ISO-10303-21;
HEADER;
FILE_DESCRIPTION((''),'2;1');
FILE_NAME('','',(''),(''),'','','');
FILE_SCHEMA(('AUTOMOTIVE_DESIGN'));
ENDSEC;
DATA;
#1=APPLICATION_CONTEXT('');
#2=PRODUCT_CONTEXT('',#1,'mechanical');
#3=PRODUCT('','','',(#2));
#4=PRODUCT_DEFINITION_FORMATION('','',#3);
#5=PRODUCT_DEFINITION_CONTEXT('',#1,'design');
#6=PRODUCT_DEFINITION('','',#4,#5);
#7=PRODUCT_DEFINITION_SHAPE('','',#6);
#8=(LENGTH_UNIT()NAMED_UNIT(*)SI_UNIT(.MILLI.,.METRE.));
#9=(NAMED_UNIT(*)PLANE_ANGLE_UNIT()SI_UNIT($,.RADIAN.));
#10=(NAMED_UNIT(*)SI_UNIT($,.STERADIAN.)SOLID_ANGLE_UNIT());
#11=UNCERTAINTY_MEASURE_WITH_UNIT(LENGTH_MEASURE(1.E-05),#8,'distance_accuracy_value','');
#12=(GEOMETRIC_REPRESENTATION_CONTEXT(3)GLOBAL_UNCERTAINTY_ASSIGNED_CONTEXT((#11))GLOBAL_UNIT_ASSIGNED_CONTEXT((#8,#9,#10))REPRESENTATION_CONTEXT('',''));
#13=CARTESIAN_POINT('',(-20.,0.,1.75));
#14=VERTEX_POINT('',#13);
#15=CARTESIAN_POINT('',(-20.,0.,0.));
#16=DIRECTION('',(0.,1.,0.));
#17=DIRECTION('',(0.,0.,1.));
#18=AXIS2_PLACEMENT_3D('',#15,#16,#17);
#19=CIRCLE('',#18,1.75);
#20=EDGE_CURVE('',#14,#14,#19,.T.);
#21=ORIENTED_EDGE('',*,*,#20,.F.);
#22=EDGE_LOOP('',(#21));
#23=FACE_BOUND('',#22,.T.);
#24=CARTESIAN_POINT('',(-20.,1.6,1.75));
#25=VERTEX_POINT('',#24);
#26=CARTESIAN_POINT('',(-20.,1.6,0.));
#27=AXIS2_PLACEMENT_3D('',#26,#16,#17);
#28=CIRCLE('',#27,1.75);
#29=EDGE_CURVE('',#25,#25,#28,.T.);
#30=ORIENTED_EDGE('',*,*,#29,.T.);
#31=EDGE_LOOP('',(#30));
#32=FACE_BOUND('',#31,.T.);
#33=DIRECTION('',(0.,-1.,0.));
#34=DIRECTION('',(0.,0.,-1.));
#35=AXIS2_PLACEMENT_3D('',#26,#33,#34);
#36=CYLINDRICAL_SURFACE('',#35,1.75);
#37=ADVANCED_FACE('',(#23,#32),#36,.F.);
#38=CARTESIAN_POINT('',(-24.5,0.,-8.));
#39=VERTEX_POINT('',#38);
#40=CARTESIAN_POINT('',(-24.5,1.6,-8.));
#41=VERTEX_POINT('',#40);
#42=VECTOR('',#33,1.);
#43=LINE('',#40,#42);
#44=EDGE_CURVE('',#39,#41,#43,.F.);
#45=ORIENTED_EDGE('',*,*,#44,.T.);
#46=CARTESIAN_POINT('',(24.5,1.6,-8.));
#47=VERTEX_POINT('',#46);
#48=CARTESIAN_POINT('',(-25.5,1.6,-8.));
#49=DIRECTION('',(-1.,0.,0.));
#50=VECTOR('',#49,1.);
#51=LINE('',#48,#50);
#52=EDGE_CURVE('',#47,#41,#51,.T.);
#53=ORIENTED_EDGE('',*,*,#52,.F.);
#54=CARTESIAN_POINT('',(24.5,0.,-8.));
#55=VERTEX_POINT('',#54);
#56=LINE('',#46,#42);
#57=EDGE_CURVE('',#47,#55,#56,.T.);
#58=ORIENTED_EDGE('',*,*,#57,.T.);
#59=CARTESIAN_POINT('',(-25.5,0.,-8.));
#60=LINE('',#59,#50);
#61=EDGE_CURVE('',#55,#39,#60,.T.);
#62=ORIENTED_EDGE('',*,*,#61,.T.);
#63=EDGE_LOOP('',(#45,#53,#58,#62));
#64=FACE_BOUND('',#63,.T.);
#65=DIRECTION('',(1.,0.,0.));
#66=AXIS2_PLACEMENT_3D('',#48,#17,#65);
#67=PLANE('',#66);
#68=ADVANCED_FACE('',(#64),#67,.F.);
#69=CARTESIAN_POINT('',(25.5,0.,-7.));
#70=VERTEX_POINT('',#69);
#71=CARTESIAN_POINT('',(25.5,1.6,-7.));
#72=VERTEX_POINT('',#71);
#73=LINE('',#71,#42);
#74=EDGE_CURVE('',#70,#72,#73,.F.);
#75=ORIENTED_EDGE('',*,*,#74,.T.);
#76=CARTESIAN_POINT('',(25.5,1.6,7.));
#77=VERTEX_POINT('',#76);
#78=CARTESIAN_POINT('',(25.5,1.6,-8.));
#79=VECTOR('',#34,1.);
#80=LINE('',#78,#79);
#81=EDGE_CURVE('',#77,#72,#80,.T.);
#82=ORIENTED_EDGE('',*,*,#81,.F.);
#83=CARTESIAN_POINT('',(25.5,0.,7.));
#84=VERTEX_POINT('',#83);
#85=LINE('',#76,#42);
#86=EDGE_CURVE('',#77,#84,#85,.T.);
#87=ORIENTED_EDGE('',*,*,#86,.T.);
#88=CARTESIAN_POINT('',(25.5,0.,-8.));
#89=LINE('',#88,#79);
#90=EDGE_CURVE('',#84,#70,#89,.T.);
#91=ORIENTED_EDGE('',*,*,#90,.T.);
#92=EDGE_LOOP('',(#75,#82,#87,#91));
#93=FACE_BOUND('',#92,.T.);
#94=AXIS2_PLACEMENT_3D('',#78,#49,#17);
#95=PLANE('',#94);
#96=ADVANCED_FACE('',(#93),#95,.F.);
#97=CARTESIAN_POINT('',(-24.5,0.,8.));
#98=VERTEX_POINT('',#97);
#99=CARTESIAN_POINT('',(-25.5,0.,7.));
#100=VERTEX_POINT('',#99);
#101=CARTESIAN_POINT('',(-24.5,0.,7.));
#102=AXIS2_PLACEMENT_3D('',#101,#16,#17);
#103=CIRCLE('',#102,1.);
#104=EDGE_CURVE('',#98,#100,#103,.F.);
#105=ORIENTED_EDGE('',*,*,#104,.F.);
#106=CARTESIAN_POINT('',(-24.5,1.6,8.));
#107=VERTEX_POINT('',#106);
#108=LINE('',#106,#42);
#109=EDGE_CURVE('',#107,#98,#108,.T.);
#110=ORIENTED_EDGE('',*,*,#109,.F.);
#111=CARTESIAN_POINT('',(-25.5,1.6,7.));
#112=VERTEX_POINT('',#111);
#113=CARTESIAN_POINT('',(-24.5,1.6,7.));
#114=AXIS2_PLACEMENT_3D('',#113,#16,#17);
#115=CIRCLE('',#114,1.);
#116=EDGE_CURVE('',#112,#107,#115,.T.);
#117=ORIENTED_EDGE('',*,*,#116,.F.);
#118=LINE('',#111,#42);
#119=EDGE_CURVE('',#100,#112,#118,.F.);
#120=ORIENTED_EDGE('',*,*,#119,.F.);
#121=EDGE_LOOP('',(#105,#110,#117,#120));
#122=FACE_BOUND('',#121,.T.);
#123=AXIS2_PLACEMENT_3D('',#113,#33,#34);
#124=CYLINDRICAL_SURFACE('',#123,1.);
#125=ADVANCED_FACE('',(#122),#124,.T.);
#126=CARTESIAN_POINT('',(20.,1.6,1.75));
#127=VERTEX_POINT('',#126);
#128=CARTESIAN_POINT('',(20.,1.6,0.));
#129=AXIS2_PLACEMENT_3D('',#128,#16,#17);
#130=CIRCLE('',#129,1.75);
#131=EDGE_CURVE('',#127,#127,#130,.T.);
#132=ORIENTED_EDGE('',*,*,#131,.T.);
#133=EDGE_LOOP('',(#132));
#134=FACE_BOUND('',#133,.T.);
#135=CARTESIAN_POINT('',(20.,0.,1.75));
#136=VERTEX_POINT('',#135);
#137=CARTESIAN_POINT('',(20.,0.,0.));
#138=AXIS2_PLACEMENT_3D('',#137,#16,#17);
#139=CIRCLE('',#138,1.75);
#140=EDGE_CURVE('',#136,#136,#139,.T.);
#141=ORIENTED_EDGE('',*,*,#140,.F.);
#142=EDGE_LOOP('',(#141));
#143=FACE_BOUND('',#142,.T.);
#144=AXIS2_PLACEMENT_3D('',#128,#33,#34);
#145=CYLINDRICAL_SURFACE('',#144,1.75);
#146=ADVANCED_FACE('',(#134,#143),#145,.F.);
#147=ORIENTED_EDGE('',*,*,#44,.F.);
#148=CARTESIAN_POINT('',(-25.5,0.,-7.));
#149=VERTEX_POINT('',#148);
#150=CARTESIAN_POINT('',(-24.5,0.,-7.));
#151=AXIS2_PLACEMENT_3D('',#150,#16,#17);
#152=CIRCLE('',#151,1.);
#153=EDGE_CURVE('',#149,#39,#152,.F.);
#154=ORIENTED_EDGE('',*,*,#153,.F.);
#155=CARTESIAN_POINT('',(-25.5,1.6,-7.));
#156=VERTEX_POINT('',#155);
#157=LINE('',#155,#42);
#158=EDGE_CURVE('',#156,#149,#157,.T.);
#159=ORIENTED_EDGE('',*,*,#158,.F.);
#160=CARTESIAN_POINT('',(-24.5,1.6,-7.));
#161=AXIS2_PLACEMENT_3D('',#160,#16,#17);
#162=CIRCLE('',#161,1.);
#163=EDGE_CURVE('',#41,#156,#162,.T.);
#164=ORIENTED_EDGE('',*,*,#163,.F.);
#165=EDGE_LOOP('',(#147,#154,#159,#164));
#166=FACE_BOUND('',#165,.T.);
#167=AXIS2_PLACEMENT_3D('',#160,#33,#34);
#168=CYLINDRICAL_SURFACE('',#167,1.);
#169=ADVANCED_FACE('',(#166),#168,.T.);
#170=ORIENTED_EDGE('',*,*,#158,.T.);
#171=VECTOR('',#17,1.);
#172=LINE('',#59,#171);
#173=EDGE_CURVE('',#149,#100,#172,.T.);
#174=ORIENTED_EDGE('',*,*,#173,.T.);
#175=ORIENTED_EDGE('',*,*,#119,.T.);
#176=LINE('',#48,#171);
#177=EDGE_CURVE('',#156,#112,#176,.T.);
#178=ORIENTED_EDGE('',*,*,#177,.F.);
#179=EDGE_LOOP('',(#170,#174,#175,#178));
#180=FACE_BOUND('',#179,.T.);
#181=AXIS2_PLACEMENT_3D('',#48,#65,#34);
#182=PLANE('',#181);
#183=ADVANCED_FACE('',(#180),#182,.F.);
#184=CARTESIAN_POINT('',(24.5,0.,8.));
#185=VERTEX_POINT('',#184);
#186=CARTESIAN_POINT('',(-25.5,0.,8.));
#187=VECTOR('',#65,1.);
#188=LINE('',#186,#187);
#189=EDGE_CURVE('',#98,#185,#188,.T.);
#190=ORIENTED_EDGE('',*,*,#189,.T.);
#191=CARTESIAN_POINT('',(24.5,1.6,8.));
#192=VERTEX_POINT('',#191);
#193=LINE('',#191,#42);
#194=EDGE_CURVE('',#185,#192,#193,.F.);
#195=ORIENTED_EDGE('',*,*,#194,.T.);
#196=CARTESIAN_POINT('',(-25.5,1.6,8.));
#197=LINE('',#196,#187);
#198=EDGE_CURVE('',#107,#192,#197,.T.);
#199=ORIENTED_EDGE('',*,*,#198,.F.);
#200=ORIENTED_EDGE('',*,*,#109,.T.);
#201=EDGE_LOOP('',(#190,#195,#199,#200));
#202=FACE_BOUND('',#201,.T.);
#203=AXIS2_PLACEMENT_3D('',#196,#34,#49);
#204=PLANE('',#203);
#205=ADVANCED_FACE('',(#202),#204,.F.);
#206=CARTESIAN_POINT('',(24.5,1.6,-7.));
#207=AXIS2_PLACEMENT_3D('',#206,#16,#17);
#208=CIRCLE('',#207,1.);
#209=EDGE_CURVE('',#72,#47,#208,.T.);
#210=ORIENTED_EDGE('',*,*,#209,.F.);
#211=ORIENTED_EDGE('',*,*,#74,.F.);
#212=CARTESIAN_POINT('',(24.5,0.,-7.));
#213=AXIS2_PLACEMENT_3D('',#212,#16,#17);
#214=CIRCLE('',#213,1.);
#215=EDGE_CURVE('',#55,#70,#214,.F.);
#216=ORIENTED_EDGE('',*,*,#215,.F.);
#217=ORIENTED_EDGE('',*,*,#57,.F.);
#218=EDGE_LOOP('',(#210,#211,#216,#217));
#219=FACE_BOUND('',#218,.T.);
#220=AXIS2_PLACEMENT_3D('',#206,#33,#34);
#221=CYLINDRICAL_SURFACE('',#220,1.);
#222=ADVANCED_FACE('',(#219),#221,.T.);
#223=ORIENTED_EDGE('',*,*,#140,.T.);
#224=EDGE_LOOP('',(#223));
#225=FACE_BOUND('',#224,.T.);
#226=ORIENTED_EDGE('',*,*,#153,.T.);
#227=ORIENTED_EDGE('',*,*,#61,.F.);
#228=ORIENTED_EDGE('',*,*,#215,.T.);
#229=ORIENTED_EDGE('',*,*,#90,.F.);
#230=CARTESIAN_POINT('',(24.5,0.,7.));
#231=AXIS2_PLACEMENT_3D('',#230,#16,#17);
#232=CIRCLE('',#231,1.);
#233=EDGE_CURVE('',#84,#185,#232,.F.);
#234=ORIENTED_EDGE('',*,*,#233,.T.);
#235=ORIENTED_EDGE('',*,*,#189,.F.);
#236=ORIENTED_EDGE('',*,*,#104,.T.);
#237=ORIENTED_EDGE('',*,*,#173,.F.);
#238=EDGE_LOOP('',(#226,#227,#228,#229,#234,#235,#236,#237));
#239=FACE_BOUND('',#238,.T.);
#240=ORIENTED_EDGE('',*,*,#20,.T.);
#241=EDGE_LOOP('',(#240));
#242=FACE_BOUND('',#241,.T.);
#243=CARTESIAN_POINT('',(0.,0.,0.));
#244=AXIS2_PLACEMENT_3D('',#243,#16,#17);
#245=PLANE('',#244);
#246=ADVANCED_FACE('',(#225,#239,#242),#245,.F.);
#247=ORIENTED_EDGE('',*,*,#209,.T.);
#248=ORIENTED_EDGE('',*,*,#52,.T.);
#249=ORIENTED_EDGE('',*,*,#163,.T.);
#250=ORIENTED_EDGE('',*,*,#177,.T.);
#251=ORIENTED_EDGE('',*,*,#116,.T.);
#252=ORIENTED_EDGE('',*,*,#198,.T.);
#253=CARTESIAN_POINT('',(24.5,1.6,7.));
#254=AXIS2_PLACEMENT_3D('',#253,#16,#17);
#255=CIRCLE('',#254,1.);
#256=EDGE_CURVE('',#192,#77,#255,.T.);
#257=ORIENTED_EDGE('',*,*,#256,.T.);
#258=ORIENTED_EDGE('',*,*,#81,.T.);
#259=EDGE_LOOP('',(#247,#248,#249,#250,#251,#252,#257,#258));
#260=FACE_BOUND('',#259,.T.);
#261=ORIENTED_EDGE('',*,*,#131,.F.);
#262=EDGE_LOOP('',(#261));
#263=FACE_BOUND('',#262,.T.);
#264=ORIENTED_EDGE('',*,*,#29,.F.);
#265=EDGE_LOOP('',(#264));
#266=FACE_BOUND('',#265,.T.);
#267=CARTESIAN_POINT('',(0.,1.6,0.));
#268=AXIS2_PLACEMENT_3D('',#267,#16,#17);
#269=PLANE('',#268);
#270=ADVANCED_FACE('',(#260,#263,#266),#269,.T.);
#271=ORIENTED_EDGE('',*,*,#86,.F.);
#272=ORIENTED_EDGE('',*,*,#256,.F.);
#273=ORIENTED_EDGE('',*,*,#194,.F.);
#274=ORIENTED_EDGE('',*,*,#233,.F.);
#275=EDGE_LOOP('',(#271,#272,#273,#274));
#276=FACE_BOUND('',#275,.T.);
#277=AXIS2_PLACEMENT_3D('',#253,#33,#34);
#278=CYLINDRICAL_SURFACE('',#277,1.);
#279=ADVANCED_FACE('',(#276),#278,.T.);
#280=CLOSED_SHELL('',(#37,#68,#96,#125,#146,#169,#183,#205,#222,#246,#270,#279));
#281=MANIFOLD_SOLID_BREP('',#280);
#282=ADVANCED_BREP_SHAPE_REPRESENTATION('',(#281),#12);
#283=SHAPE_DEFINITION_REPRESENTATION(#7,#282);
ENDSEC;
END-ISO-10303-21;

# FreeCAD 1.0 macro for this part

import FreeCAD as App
import Part
import Sketcher

V = App.Vector
Q = App.Units.Quantity


def edges_at(feature, points):
    """Names of the edges that pass closest to the given points."""
    edges = feature.Shape.Edges
    near = lambda p: min(range(len(edges)), key=lambda i: edges[i].distToShape(Part.Vertex(*p))[0])
    return sorted({f"Edge{near(p) + 1}" for p in points})


def add_polygon(sketch, points):
    """Adds a closed chain of lines whose ends are joined by coincident constraints."""
    first, n = sketch.GeometryCount, len(points)
    for a, b in zip(points, points[1:] + points[:1]):
        sketch.addGeometry(Part.LineSegment(App.Vector(*a, 0), App.Vector(*b, 0)), False)
    for i in range(n):
        sketch.addConstraint(Sketcher.Constraint("Coincident", first + i, 2, first + (i + 1) % n, 1))

doc = App.newDocument("Part")
params = doc.addObject("Spreadsheet::Sheet", "Params")
for row, (alias, value) in enumerate([
    ("sketch1_diameter", "3.5 mm"),
    ("sketch1_width", "51 mm"),
    ("sketch1_height", "16 mm"),
    ("pad1_length", "1.6 mm"),
    ("fillet_radius", "1 mm"),
], start=1):
    params.set(f"A{row}", alias)
    params.set(f"B{row}", "=" + value)
    params.setAlias(f"B{row}", alias)

body = doc.addObject("PartDesign::Body", "Body")

# Sketch on XZ plane
sketch1 = body.newObject("Sketcher::SketchObject", "Sketch")
sketch1.AttachmentSupport = (doc.getObject("XZ_Plane"), [""])
sketch1.MapMode = "FlatFace"
add_polygon(sketch1, [(-25.5, -8), (-25.5, 8), (25.5, 8), (25.5, -8)])  # lines 0-3
sketch1.addGeometry(Part.Circle(V(-20, 0, 0), V(0, 0, 1), 1.75), False)  # 4
sketch1.addGeometry(Part.Circle(V(20, 0, 0), V(0, 0, 1), 1.75), False)  # 5
sketch1.addConstraint(Sketcher.Constraint("Vertical", 0))
sketch1.addConstraint(Sketcher.Constraint("Horizontal", 1))
sketch1.addConstraint(Sketcher.Constraint("Vertical", 2))
sketch1.addConstraint(Sketcher.Constraint("Horizontal", 3))
sketch1.addConstraint(Sketcher.Constraint("Equal", 4, 5))
sketch1.addConstraint(Sketcher.Constraint("Symmetric", 4, 3, 5, 3, -1, 1))
sketch1.addConstraint(Sketcher.Constraint("Symmetric", 0, 2, 2, 2, -1, 1))
sketch1.addConstraint(Sketcher.Constraint("PointOnObject", 4, 3, -1))
sketch1.addConstraint(Sketcher.Constraint("Diameter", 4, Q("3.5 mm")))
sketch1.addConstraint(Sketcher.Constraint("DistanceX", 1, 1, 1, 2, Q("51 mm")))
sketch1.addConstraint(Sketcher.Constraint("DistanceY", 0, 1, 0, 2, Q("16 mm")))
sketch1.addConstraint(Sketcher.Constraint("DistanceX", 4, 3, -1, 1, Q("20 mm")))
sketch1.setExpression("Constraints[12]", "Params.sketch1_diameter")
sketch1.setExpression("Constraints[13]", "Params.sketch1_width")
sketch1.setExpression("Constraints[14]", "Params.sketch1_height")
pad1 = body.newObject("PartDesign::Pad", "Pad")
pad1.Profile = sketch1
pad1.setExpression("Length", "Params.pad1_length")
pad1.Reversed = True
doc.recompute()

fillet = body.newObject("PartDesign::Fillet", "Fillet")
fillet.Base = (pad1, edges_at(pad1, [
    (25.5, 0.8, 8),
    (-25.5, 0.8, 8),
    (-25.5, 0.8, -8),
    (25.5, 0.8, -8),
]))
fillet.setExpression("Radius", "Params.fillet_radius")

doc.recompute()
